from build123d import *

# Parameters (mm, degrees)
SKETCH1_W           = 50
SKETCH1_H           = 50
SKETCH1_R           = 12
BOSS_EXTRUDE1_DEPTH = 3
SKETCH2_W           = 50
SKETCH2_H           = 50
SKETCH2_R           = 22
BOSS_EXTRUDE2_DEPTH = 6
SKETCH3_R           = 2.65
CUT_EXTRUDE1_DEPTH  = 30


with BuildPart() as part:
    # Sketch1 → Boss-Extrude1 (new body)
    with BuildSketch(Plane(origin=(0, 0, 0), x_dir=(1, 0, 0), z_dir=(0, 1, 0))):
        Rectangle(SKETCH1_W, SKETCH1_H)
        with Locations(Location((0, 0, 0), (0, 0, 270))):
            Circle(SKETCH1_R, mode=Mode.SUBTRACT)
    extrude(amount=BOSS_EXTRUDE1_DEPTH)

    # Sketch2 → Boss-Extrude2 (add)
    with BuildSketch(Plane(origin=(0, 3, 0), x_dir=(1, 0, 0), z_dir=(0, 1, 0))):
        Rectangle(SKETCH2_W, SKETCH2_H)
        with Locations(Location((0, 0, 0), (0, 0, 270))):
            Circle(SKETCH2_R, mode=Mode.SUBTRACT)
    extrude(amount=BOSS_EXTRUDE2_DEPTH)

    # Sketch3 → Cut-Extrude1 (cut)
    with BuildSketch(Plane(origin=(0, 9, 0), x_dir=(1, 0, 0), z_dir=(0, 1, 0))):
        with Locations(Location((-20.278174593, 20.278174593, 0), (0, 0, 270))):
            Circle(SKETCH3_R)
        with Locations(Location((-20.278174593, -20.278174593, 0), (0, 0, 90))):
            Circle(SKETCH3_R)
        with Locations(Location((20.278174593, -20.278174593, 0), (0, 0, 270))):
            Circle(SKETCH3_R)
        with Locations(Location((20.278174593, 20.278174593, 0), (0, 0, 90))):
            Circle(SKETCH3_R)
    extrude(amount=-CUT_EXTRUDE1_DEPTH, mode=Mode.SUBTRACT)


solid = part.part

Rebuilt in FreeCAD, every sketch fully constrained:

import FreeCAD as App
import Part
import Sketcher

V = App.Vector

doc = App.newDocument("Part")
body = doc.addObject("PartDesign::Body", "Body")

# Sketch on XZ plane
sketch1 = body.newObject("Sketcher::SketchObject", "Sketch")
sketch1.AttachmentSupport = (doc.getObject("XZ_Plane"), [""])
sketch1.MapMode = "FlatFace"
sketch1.addGeometry([
    Part.LineSegment(V(-25, -25, 0), V(-25, 25, 0)),  # 0
    Part.LineSegment(V(-25, 25, 0), V(25, 25, 0)),  # 1
    Part.LineSegment(V(25, 25, 0), V(25, -25, 0)),  # 2
    Part.LineSegment(V(25, -25, 0), V(-25, -25, 0)),  # 3
    Part.Circle(V(0, 0, 0), V(0, 0, 1), 12),  # 4
], False)
sketch1.addConstraint([
    Sketcher.Constraint("Coincident", 0, 2, 1, 1),
    Sketcher.Constraint("Coincident", 1, 2, 2, 1),
    Sketcher.Constraint("Coincident", 2, 2, 3, 1),
    Sketcher.Constraint("Coincident", 3, 2, 0, 1),
    Sketcher.Constraint("Vertical", 0),
    Sketcher.Constraint("Horizontal", 1),
    Sketcher.Constraint("Vertical", 2),
    Sketcher.Constraint("Horizontal", 3),
    Sketcher.Constraint("Coincident", 4, 3, -1, 1),
    Sketcher.Constraint("Symmetric", 0, 2, 2, 2, -1, 1),
    Sketcher.Constraint("Equal", 3, 0),
    Sketcher.Constraint("Diameter", 4, 24.0),
    Sketcher.Constraint("DistanceX", 1, 1, 1, 2, 50.0),
])
pad1 = body.newObject("PartDesign::Pad", "Pad")
pad1.Profile = sketch1
pad1.Length = 3
pad1.Reversed = True

# Sketch on XZ plane
sketch2 = body.newObject("Sketcher::SketchObject", "Sketch001")
sketch2.AttachmentSupport = (doc.getObject("XZ_Plane"), [""])
sketch2.MapMode = "FlatFace"
sketch2.AttachmentOffset = App.Placement(V(0, 0, -3), App.Rotation())
sketch2.addGeometry([
    Part.LineSegment(V(-25, -25, 0), V(-25, 25, 0)),  # 0
    Part.LineSegment(V(-25, 25, 0), V(25, 25, 0)),  # 1
    Part.LineSegment(V(25, 25, 0), V(25, -25, 0)),  # 2
    Part.LineSegment(V(25, -25, 0), V(-25, -25, 0)),  # 3
    Part.Circle(V(0, 0, 0), V(0, 0, 1), 22),  # 4
], False)
sketch2.addConstraint([
    Sketcher.Constraint("Coincident", 0, 2, 1, 1),
    Sketcher.Constraint("Coincident", 1, 2, 2, 1),
    Sketcher.Constraint("Coincident", 2, 2, 3, 1),
    Sketcher.Constraint("Coincident", 3, 2, 0, 1),
    Sketcher.Constraint("Vertical", 0),
    Sketcher.Constraint("Horizontal", 1),
    Sketcher.Constraint("Vertical", 2),
    Sketcher.Constraint("Horizontal", 3),
    Sketcher.Constraint("Coincident", 4, 3, -1, 1),
    Sketcher.Constraint("Symmetric", 0, 2, 2, 2, -1, 1),
    Sketcher.Constraint("Equal", 3, 0),
    Sketcher.Constraint("Diameter", 4, 44.0),
    Sketcher.Constraint("DistanceX", 1, 1, 1, 2, 50.0),
])
pad2 = body.newObject("PartDesign::Pad", "Pad001")
pad2.Profile = sketch2
pad2.Length = 6
pad2.Reversed = True

# Sketch on XZ plane
sketch3 = body.newObject("Sketcher::SketchObject", "Sketch002")
sketch3.AttachmentSupport = (doc.getObject("XZ_Plane"), [""])
sketch3.MapMode = "FlatFace"
sketch3.AttachmentOffset = App.Placement(V(0, 0, -9), App.Rotation())
sketch3.addGeometry([
    Part.Circle(V(-20.3, -20.3, 0), V(0, 0, 1), 2.6),
    Part.Circle(V(-20.3, 20.3, 0), V(0, 0, 1), 2.6),
    Part.Circle(V(20.3, 20.3, 0), V(0, 0, 1), 2.6),
    Part.Circle(V(20.3, -20.3, 0), V(0, 0, 1), 2.6),
], False)
sketch3.addConstraint([
    Sketcher.Constraint("Equal", 0, 1),
    Sketcher.Constraint("Equal", 1, 2),
    Sketcher.Constraint("Equal", 2, 3),
    Sketcher.Constraint("Symmetric", 0, 3, 2, 3, -1, 1),
    Sketcher.Constraint("Symmetric", 1, 3, 3, 3, -1, 1),
    Sketcher.Constraint("Symmetric", 1, 3, 2, 3, -2),
    Sketcher.Constraint("Diameter", 0, 5.3),
    Sketcher.Constraint("DistanceY", 0, 3, 1, 3, 40.556349),
    Sketcher.Constraint("DistanceX", 1, 3, 2, 3, 40.556349),
])
pocket1 = body.newObject("PartDesign::Pocket", "Pocket")
pocket1.Profile = sketch3
pocket1.Length = 30
pocket1.Reversed = True

doc.recompute()
